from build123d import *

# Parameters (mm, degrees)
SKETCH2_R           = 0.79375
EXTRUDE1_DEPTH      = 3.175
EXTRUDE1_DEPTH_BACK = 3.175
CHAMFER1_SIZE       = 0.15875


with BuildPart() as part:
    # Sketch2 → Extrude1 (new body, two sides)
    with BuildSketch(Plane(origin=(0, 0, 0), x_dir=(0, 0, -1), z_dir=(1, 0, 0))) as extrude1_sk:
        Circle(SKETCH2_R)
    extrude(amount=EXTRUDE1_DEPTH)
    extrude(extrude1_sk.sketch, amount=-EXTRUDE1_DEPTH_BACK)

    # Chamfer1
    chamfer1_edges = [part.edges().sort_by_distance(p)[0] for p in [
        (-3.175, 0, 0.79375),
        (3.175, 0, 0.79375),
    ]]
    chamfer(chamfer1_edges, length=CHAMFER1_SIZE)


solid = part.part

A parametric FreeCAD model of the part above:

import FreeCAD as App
import Part
import Sketcher

V = App.Vector
Q = App.Units.Quantity


def edges_at(feature, points):
    """Names of the edges that pass closest to the given points."""
    edges = feature.Shape.Edges
    near = lambda p: min(range(len(edges)), key=lambda i: edges[i].distToShape(Part.Vertex(*p))[0])
    return sorted({f"Edge{near(p) + 1}" for p in points})

doc = App.newDocument("Part")
body = doc.addObject("PartDesign::Body", "Body")

# Sketch on YZ plane
sketch1 = body.newObject("Sketcher::SketchObject", "Sketch")
sketch1.AttachmentSupport = (doc.getObject("YZ_Plane"), [""])
sketch1.MapMode = "FlatFace"
sketch1.addGeometry(Part.Circle(V(0, 0, 0), V(0, 0, 1), 0.8), False)
sketch1.addConstraint([
    Sketcher.Constraint("Coincident", 0, 3, -1, 1),
    Sketcher.Constraint("Diameter", 0, Q("0.0625 in")),
])
pad1 = body.newObject("PartDesign::Pad", "Pad")
pad1.Profile = sketch1
pad1.Type = "TwoLengths"
pad1.Length = Q("0.125 in")
pad1.Length2 = Q("0.125 in")
doc.recompute()

chamfer = body.newObject("PartDesign::Chamfer", "Chamfer")
chamfer.Base = (pad1, edges_at(pad1, [(-3.175, 0, 0.794), (3.175, 0, 0.794)]))
chamfer.Size = 0.15875

doc.recompute()
